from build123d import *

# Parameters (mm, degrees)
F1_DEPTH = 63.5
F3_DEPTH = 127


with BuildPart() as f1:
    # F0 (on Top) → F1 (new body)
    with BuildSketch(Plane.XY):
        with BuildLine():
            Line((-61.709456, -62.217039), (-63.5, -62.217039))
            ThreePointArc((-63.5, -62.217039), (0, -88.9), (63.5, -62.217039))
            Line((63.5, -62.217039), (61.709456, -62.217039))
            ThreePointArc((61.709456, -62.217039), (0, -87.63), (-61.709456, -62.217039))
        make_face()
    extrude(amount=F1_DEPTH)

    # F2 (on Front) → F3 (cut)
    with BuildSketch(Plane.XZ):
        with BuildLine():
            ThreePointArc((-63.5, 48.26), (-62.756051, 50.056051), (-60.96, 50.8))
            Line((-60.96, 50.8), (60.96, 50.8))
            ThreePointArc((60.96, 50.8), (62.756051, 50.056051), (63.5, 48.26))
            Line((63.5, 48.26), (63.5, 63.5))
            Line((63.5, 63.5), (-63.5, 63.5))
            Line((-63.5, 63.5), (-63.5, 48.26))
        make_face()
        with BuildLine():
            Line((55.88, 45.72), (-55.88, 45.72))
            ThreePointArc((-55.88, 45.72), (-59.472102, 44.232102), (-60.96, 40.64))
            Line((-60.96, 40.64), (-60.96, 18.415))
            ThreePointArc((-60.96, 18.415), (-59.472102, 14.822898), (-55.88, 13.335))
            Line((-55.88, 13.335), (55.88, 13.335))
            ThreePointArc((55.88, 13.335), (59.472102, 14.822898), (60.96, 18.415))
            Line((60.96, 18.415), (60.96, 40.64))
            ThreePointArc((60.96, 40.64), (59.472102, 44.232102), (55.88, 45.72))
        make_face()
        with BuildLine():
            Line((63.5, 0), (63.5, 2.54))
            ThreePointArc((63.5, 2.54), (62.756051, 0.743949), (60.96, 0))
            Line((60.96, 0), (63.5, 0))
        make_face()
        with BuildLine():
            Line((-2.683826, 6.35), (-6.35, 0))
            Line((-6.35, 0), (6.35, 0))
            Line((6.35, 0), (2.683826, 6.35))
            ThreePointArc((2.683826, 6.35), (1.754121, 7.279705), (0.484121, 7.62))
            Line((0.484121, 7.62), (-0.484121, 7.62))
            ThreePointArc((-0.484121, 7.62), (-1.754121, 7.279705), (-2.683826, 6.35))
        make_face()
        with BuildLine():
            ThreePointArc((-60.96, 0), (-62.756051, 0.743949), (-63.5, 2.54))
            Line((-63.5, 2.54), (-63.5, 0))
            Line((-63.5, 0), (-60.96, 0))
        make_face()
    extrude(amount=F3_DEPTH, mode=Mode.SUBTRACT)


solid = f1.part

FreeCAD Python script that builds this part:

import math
import FreeCAD as App
import Part
import Sketcher
from FreeCAD import Vector
Q = App.Units.Quantity

doc = App.newDocument("Part")
body = doc.addObject("PartDesign::Body", "Body")

sketch1 = body.newObject("Sketcher::SketchObject", "Sketch")
sketch1.AttachmentSupport = (doc.getObject("XY_Plane"), [""])
sketch1.MapMode = "FlatFace"
sketch1.addGeometry(Part.LineSegment(Vector(-61.7, -62.2, 0), Vector(-63.5, -62.2, 0)), False)
sketch1.addGeometry(Part.ArcOfCircle(Part.Circle(Vector(0, 0, 0), Vector(0, 0, 1), 88.9), math.radians(-136), math.radians(-44)), False)
sketch1.addGeometry(Part.LineSegment(Vector(63.5, -62.2, 0), Vector(61.7, -62.2, 0)), False)
sketch1.addGeometry(Part.ArcOfCircle(Part.Circle(Vector(0, 0, 0), Vector(0, 0, 1), 87.6), math.radians(-135), math.radians(-45)), False)
sketch1.addConstraint(Sketcher.Constraint("Coincident", 0, 2, 1, 1))
sketch1.addConstraint(Sketcher.Constraint("Coincident", 1, 2, 2, 1))
sketch1.addConstraint(Sketcher.Constraint("Coincident", 2, 2, 3, 2))
sketch1.addConstraint(Sketcher.Constraint("Coincident", 3, 1, 0, 1))
sketch1.addConstraint(Sketcher.Constraint("Horizontal", 0))
sketch1.addConstraint(Sketcher.Constraint("Horizontal", 2))
sketch1.addConstraint(Sketcher.Constraint("Coincident", 1, 3, -1, 1))
sketch1.addConstraint(Sketcher.Constraint("Coincident", 3, 3, -1, 1))
sketch1.addConstraint(Sketcher.Constraint("Horizontal", 0, 2, 1, 2))
sketch1.addConstraint(Sketcher.Constraint("Radius", 1, Q("3.5 in")))
sketch1.addConstraint(Sketcher.Constraint("Radius", 3, Q("3.45 in")))
sketch1.addConstraint(Sketcher.Constraint("DistanceX", 0, 2, 1, 2, Q("5 in")))
pad1 = body.newObject("PartDesign::Pad", "Pad")
pad1.Profile = sketch1
pad1.Length = Q("2.5 in")

sketch2 = body.newObject("Sketcher::SketchObject", "Sketch001")
sketch2.AttachmentSupport = (doc.getObject("XZ_Plane"), [""])
sketch2.MapMode = "FlatFace"
sketch2.addGeometry(Part.ArcOfCircle(Part.Circle(Vector(-61, 48.3, 0), Vector(0, 0, 1), 2.5), math.radians(90), math.radians(180)), False)
sketch2.addGeometry(Part.LineSegment(Vector(-61, 50.8, 0), Vector(61, 50.8, 0)), False)
sketch2.addGeometry(Part.ArcOfCircle(Part.Circle(Vector(61, 48.3, 0), Vector(0, 0, 1), 2.5), math.radians(0), math.radians(90)), False)
sketch2.addGeometry(Part.LineSegment(Vector(63.5, 48.3, 0), Vector(63.5, 63.5, 0)), False)
sketch2.addGeometry(Part.LineSegment(Vector(63.5, 63.5, 0), Vector(-63.5, 63.5, 0)), False)
sketch2.addGeometry(Part.LineSegment(Vector(-63.5, 63.5, 0), Vector(-63.5, 48.3, 0)), False)
sketch2.addGeometry(Part.LineSegment(Vector(55.9, 45.7, 0), Vector(-55.9, 45.7, 0)), False)
sketch2.addGeometry(Part.ArcOfCircle(Part.Circle(Vector(-55.9, 40.6, 0), Vector(0, 0, 1), 5.1), math.radians(90), math.radians(180)), False)
sketch2.addGeometry(Part.LineSegment(Vector(-61, 40.6, 0), Vector(-61, 18.4, 0)), False)
sketch2.addGeometry(Part.ArcOfCircle(Part.Circle(Vector(-55.9, 18.4, 0), Vector(0, 0, 1), 5.1), math.radians(-180), math.radians(-90)), False)
sketch2.addGeometry(Part.LineSegment(Vector(-55.9, 13.3, 0), Vector(55.9, 13.3, 0)), False)
sketch2.addGeometry(Part.ArcOfCircle(Part.Circle(Vector(55.9, 18.4, 0), Vector(0, 0, 1), 5.1), math.radians(-90), math.radians(0)), False)
sketch2.addGeometry(Part.LineSegment(Vector(61, 18.4, 0), Vector(61, 40.6, 0)), False)
sketch2.addGeometry(Part.ArcOfCircle(Part.Circle(Vector(55.9, 40.6, 0), Vector(0, 0, 1), 5.1), math.radians(0), math.radians(90)), False)
sketch2.addGeometry(Part.LineSegment(Vector(63.5, 0, 0), Vector(63.5, 2.5, 0)), False)
sketch2.addGeometry(Part.ArcOfCircle(Part.Circle(Vector(61, 2.5, 0), Vector(0, 0, 1), 2.5), math.radians(-90), math.radians(0)), False)
sketch2.addGeometry(Part.LineSegment(Vector(61, 0, 0), Vector(63.5, 0, 0)), False)
sketch2.addGeometry(Part.LineSegment(Vector(-2.7, 6.3, 0), Vector(-6.3, 0, 0)), False)
sketch2.addGeometry(Part.LineSegment(Vector(-6.3, 0, 0), Vector(6.3, 0, 0)), False)
sketch2.addGeometry(Part.LineSegment(Vector(6.3, 0, 0), Vector(2.7, 6.3, 0)), False)
sketch2.addGeometry(Part.ArcOfCircle(Part.Circle(Vector(0.5, 5.1, 0), Vector(0, 0, 1), 2.5), math.radians(30), math.radians(90)), False)
sketch2.addGeometry(Part.LineSegment(Vector(0.5, 7.6, 0), Vector(-0.5, 7.6, 0)), False)
sketch2.addGeometry(Part.ArcOfCircle(Part.Circle(Vector(-0.5, 5.1, 0), Vector(0, 0, 1), 2.5), math.radians(90), math.radians(150)), False)
sketch2.addGeometry(Part.ArcOfCircle(Part.Circle(Vector(-61, 2.5, 0), Vector(0, 0, 1), 2.5), math.radians(-180), math.radians(-90)), False)
sketch2.addGeometry(Part.LineSegment(Vector(-63.5, 2.5, 0), Vector(-63.5, 0, 0)), False)
sketch2.addGeometry(Part.LineSegment(Vector(-63.5, 0, 0), Vector(-61, 0, 0)), False)
sketch2.addConstraint(Sketcher.Constraint("Tangent", 0, 1, 1, 1))
sketch2.addConstraint(Sketcher.Constraint("Tangent", 1, 2, 2, 2))
sketch2.addConstraint(Sketcher.Constraint("Tangent", 2, 1, 3, 1))
sketch2.addConstraint(Sketcher.Constraint("Coincident", 3, 2, 4, 1))
sketch2.addConstraint(Sketcher.Constraint("Coincident", 4, 2, 5, 1))
sketch2.addConstraint(Sketcher.Constraint("Tangent", 5, 2, 0, 2))
sketch2.addConstraint(Sketcher.Constraint("Tangent", 6, 2, 7, 1))
sketch2.addConstraint(Sketcher.Constraint("Tangent", 7, 2, 8, 1))
sketch2.addConstraint(Sketcher.Constraint("Tangent", 8, 2, 9, 1))
sketch2.addConstraint(Sketcher.Constraint("Tangent", 9, 2, 10, 1))
sketch2.addConstraint(Sketcher.Constraint("Tangent", 10, 2, 11, 1))
sketch2.addConstraint(Sketcher.Constraint("Tangent", 11, 2, 12, 1))
sketch2.addConstraint(Sketcher.Constraint("Tangent", 12, 2, 13, 1))
sketch2.addConstraint(Sketcher.Constraint("Tangent", 13, 2, 6, 1))
sketch2.addConstraint(Sketcher.Constraint("Tangent", 14, 2, 15, 2))
sketch2.addConstraint(Sketcher.Constraint("Tangent", 15, 1, 16, 1))
sketch2.addConstraint(Sketcher.Constraint("Coincident", 16, 2, 14, 1))
sketch2.addConstraint(Sketcher.Constraint("Coincident", 17, 2, 18, 1))
sketch2.addConstraint(Sketcher.Constraint("Coincident", 18, 2, 19, 1))
sketch2.addConstraint(Sketcher.Constraint("Tangent", 19, 2, 20, 1))
sketch2.addConstraint(Sketcher.Constraint("Tangent", 20, 2, 21, 1))
sketch2.addConstraint(Sketcher.Constraint("Tangent", 21, 2, 22, 1))
sketch2.addConstraint(Sketcher.Constraint("Tangent", 22, 2, 17, 1))
sketch2.addConstraint(Sketcher.Constraint("Tangent", 23, 1, 24, 1))
sketch2.addConstraint(Sketcher.Constraint("Coincident", 24, 2, 25, 1))
sketch2.addConstraint(Sketcher.Constraint("Tangent", 25, 2, 23, 2))
sketch2.addConstraint(Sketcher.Constraint("Horizontal", 1))
sketch2.addConstraint(Sketcher.Constraint("Vertical", 3))
sketch2.addConstraint(Sketcher.Constraint("Horizontal", 4))
sketch2.addConstraint(Sketcher.Constraint("Vertical", 5))
sketch2.addConstraint(Sketcher.Constraint("Horizontal", 6))
sketch2.addConstraint(Sketcher.Constraint("Vertical", 8))
sketch2.addConstraint(Sketcher.Constraint("Horizontal", 10))
sketch2.addConstraint(Sketcher.Constraint("Vertical", 12))
sketch2.addConstraint(Sketcher.Constraint("Vertical", 14))
sketch2.addConstraint(Sketcher.Constraint("Horizontal", 16))
sketch2.addConstraint(Sketcher.Constraint("Horizontal", 18))
sketch2.addConstraint(Sketcher.Constraint("Horizontal", 21))
sketch2.addConstraint(Sketcher.Constraint("Vertical", 24))
sketch2.addConstraint(Sketcher.Constraint("Horizontal", 25))
sketch2.addConstraint(Sketcher.Constraint("Equal", 0, 2))
sketch2.addConstraint(Sketcher.Constraint("Equal", 7, 9))
sketch2.addConstraint(Sketcher.Constraint("Equal", 9, 11))
sketch2.addConstraint(Sketcher.Constraint("Equal", 11, 13))
sketch2.addConstraint(Sketcher.Constraint("Equal", 2, 15))
sketch2.addConstraint(Sketcher.Constraint("Equal", 15, 20))
sketch2.addConstraint(Sketcher.Constraint("Equal", 20, 22))
sketch2.addConstraint(Sketcher.Constraint("Equal", 22, 23))
sketch2.addConstraint(Sketcher.Constraint("Symmetric", 17, 2, 18, 2, -1, 1))
sketch2.addConstraint(Sketcher.Constraint("Symmetric", 16, 2, 24, 2, -1, 1))
sketch2.addConstraint(Sketcher.Constraint("PointOnObject", 15, 1, -1))
sketch2.addConstraint(Sketcher.Constraint("Horizontal", 19, 2, 22, 2))
sketch2.addConstraint(Sketcher.Constraint("Vertical", 2, 3, 15, 3))
sketch2.addConstraint(Sketcher.Constraint("Vertical", 0, 3, 23, 3))
sketch2.addConstraint(Sketcher.Constraint("Vertical", 0, 1, 7, 2))
sketch2.addConstraint(Sketcher.Constraint("Vertical", 1, 2, 11, 2))
sketch2.addConstraint(Sketcher.Constraint("Radius", 0, Q("0.1 in")))
sketch2.addConstraint(Sketcher.Constraint("Radius", 7, Q("0.2000001 in")))
sketch2.addConstraint(Sketcher.Constraint("DistanceX", 4, 2, 4, 1, Q("5 in")))
sketch2.addConstraint(Sketcher.Constraint("DistanceX", 18, 1, 18, 2, Q("0.5 in")))
sketch2.addConstraint(Sketcher.Constraint("DistanceY", 3, 1, 3, 2, Q("0.6 in")))
sketch2.addConstraint(Sketcher.Constraint("DistanceY", -1, 1, 0, 1, Q("2 in")))
sketch2.addConstraint(Sketcher.Constraint("Angle", 17, Q("-119.999999 deg")))
sketch2.addConstraint(Sketcher.Constraint("DistanceY", -1, 1, 7, 3, Q("1.5999999 in")))
sketch2.addConstraint(Sketcher.Constraint("DistanceY", -1, 1, 20, 3, Q("0.2 in")))
sketch2.addConstraint(Sketcher.Constraint("DistanceY", 8, 2, 8, 1, Q("0.875 in")))
pocket1 = body.newObject("PartDesign::Pocket", "Pocket")
pocket1.Profile = sketch2
pocket1.Length = Q("5 in")
pocket1.Reversed = True

doc.recompute()
